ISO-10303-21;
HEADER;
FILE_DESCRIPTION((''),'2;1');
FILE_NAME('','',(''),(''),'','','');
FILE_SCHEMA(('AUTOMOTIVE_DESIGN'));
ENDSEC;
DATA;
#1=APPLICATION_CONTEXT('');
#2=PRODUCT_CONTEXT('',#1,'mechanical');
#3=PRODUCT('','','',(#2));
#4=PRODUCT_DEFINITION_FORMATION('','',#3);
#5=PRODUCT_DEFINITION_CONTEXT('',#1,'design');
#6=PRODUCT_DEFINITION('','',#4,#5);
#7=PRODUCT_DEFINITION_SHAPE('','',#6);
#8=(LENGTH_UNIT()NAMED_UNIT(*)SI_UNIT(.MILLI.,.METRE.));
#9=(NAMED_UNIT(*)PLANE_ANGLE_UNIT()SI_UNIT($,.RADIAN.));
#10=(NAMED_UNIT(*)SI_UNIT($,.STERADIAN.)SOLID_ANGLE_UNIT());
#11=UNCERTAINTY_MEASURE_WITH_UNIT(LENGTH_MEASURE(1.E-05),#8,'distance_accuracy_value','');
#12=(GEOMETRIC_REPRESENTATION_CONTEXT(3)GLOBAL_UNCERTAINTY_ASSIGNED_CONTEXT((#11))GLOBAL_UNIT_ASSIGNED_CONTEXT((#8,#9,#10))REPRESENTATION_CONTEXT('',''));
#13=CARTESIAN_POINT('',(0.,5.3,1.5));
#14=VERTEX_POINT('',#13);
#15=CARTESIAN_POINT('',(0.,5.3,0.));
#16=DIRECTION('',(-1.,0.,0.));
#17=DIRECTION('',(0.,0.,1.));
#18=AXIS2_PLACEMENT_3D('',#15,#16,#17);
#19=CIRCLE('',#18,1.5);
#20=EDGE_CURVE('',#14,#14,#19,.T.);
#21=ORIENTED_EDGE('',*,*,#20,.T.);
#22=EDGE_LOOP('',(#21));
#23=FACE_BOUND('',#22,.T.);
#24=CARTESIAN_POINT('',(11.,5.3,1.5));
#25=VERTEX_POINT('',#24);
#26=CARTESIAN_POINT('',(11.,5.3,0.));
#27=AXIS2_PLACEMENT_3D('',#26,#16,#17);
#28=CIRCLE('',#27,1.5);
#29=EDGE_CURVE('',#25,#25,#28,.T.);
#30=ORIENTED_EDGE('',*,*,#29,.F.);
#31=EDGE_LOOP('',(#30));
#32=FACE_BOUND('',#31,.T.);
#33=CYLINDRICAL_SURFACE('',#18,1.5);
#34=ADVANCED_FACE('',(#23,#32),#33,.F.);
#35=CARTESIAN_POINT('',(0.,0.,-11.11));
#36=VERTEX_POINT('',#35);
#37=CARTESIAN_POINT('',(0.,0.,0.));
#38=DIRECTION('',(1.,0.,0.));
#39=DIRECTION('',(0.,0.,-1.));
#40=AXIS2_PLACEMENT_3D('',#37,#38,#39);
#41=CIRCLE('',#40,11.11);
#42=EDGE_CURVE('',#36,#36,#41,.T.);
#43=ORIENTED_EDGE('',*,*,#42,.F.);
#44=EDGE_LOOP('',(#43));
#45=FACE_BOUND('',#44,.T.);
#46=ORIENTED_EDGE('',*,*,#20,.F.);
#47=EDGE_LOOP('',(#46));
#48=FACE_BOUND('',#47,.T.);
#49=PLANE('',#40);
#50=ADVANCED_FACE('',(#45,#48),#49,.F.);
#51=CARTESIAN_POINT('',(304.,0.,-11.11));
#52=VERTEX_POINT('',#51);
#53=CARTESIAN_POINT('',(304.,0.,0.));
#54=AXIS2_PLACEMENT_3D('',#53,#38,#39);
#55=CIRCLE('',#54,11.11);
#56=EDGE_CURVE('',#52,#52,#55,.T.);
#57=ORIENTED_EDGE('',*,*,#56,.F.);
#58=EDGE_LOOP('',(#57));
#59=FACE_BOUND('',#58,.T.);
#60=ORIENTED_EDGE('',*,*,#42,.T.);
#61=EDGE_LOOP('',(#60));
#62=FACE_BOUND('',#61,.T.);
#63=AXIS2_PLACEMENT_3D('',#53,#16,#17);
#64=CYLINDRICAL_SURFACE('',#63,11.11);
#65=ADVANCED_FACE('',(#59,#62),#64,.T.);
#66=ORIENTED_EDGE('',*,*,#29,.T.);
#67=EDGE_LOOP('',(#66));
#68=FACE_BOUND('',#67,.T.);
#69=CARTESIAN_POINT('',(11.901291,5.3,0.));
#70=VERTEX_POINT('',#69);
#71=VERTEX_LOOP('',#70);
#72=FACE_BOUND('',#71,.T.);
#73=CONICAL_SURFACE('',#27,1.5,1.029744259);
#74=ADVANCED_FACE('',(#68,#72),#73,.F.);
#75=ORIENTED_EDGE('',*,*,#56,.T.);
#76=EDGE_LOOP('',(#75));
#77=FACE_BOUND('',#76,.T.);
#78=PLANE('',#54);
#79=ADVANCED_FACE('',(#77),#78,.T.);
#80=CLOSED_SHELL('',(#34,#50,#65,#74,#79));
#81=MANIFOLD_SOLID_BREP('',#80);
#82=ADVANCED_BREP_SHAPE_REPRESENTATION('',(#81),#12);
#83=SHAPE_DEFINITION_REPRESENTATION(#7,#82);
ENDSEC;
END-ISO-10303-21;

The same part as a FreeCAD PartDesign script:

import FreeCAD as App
import Part
import Sketcher

V = App.Vector
Q = App.Units.Quantity

doc = App.newDocument("Part")
params = doc.addObject("Spreadsheet::Sheet", "Params")
for row, (alias, value) in enumerate([
    ("sketch1_diameter", "22.22 mm"),
    ("pad1_length", "304 mm"),
    ("sketch2_diameter", "3 mm"),
    ("hole_diameter", "3 mm"),
    ("hole_depth", "11 mm"),
], start=1):
    params.set(f"A{row}", alias)
    params.set(f"B{row}", "=" + value)
    params.setAlias(f"B{row}", alias)

body = doc.addObject("PartDesign::Body", "Body")

# Sketch on YZ plane
sketch1 = doc.addObject("Sketcher::SketchObject", "Sketch")
body.addObject(sketch1)
sketch1.AttachmentSupport = (doc.YZ_Plane, [""])
sketch1.MapMode = "FlatFace"
sketch1.addGeometry(Part.Circle(V(0, 0, 0), V(0, 0, 1), 11), False)
sketch1.addConstraint([
    Sketcher.Constraint("Coincident", 0, 3, -1, 1),
    Sketcher.Constraint("Diameter", 0, Q("22.22 mm")),
])
sketch1.setExpression("Constraints[1]", "Params.sketch1_diameter")
pad1 = doc.addObject("PartDesign::Pad", "Pad")
body.addObject(pad1)
pad1.Profile = sketch1
pad1.setExpression("Length", "Params.pad1_length")

# Sketch on YZ plane
sketch2 = doc.addObject("Sketcher::SketchObject", "Sketch001")
body.addObject(sketch2)
sketch2.AttachmentSupport = (doc.YZ_Plane, [""])
sketch2.MapMode = "FlatFace"
sketch2.addGeometry(Part.Circle(V(5.3, 0, 0), V(0, 0, 1), 1.5), False)
sketch2.addConstraint([
    Sketcher.Constraint("PointOnObject", 0, 3, -1),
    Sketcher.Constraint("Diameter", 0, Q("3 mm")),
    Sketcher.Constraint("DistanceX", -1, 1, 0, 3, Q("5.3 mm")),
])
sketch2.setExpression("Constraints[1]", "Params.sketch2_diameter")
doc.recompute()
hole = doc.addObject("PartDesign::Hole", "Hole")
body.addObject(hole)
hole.Profile = sketch2
hole.ThreadType = "None"
hole.setExpression("Diameter", "Params.hole_diameter")
hole.DepthType = "Dimension"
hole.setExpression("Depth", "Params.hole_depth")
hole.DrillPoint = "Angled"
hole.DrillPointAngle = 118
hole.Reversed = True

doc.recompute()
